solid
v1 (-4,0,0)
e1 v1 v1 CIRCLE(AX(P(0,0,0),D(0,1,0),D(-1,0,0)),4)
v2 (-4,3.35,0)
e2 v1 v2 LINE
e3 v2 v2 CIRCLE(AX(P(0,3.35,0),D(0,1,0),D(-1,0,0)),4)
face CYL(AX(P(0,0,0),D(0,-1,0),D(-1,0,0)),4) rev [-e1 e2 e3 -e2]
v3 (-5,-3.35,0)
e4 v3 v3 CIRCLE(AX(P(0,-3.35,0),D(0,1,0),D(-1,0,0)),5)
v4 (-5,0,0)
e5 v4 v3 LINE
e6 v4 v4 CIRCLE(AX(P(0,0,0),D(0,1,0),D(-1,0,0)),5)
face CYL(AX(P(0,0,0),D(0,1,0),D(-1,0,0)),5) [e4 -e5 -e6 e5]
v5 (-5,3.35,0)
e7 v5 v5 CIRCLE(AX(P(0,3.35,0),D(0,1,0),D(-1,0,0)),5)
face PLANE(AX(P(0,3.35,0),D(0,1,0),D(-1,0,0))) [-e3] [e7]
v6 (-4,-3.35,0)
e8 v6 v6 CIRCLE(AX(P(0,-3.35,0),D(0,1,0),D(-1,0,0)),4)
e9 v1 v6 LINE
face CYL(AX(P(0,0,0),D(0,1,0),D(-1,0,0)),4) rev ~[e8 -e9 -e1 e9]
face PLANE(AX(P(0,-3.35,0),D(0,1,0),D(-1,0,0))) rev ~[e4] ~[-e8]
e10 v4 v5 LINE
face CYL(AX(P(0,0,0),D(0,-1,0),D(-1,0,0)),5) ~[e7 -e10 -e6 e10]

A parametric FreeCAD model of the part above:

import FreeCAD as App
import Part
import Sketcher
from FreeCAD import Vector
Q = App.Units.Quantity

doc = App.newDocument("Part")
body = doc.addObject("PartDesign::Body", "Body")

# Sketch on XZ plane
sketch1 = body.newObject("Sketcher::SketchObject", "Sketch")
sketch1.AttachmentSupport = (doc.getObject("XZ_Plane"), [""])
sketch1.MapMode = "FlatFace"
sketch1.addGeometry(Part.Circle(Vector(0, 0, 0), Vector(0, 0, 1), 5), False)
sketch1.addGeometry(Part.Circle(Vector(0, 0, 0), Vector(0, 0, 1), 4), False)
sketch1.addConstraint(Sketcher.Constraint("Coincident", 0, 3, -1, 1))
sketch1.addConstraint(Sketcher.Constraint("Coincident", 1, 3, -1, 1))
sketch1.addConstraint(Sketcher.Constraint("Diameter", 0, Q("10 mm")))
sketch1.addConstraint(Sketcher.Constraint("Diameter", 1, Q("8 mm")))
pad1 = body.newObject("PartDesign::Pad", "Pad")
pad1.Profile = sketch1
pad1.Length = 6.7
pad1.Midplane = True

doc.recompute()
